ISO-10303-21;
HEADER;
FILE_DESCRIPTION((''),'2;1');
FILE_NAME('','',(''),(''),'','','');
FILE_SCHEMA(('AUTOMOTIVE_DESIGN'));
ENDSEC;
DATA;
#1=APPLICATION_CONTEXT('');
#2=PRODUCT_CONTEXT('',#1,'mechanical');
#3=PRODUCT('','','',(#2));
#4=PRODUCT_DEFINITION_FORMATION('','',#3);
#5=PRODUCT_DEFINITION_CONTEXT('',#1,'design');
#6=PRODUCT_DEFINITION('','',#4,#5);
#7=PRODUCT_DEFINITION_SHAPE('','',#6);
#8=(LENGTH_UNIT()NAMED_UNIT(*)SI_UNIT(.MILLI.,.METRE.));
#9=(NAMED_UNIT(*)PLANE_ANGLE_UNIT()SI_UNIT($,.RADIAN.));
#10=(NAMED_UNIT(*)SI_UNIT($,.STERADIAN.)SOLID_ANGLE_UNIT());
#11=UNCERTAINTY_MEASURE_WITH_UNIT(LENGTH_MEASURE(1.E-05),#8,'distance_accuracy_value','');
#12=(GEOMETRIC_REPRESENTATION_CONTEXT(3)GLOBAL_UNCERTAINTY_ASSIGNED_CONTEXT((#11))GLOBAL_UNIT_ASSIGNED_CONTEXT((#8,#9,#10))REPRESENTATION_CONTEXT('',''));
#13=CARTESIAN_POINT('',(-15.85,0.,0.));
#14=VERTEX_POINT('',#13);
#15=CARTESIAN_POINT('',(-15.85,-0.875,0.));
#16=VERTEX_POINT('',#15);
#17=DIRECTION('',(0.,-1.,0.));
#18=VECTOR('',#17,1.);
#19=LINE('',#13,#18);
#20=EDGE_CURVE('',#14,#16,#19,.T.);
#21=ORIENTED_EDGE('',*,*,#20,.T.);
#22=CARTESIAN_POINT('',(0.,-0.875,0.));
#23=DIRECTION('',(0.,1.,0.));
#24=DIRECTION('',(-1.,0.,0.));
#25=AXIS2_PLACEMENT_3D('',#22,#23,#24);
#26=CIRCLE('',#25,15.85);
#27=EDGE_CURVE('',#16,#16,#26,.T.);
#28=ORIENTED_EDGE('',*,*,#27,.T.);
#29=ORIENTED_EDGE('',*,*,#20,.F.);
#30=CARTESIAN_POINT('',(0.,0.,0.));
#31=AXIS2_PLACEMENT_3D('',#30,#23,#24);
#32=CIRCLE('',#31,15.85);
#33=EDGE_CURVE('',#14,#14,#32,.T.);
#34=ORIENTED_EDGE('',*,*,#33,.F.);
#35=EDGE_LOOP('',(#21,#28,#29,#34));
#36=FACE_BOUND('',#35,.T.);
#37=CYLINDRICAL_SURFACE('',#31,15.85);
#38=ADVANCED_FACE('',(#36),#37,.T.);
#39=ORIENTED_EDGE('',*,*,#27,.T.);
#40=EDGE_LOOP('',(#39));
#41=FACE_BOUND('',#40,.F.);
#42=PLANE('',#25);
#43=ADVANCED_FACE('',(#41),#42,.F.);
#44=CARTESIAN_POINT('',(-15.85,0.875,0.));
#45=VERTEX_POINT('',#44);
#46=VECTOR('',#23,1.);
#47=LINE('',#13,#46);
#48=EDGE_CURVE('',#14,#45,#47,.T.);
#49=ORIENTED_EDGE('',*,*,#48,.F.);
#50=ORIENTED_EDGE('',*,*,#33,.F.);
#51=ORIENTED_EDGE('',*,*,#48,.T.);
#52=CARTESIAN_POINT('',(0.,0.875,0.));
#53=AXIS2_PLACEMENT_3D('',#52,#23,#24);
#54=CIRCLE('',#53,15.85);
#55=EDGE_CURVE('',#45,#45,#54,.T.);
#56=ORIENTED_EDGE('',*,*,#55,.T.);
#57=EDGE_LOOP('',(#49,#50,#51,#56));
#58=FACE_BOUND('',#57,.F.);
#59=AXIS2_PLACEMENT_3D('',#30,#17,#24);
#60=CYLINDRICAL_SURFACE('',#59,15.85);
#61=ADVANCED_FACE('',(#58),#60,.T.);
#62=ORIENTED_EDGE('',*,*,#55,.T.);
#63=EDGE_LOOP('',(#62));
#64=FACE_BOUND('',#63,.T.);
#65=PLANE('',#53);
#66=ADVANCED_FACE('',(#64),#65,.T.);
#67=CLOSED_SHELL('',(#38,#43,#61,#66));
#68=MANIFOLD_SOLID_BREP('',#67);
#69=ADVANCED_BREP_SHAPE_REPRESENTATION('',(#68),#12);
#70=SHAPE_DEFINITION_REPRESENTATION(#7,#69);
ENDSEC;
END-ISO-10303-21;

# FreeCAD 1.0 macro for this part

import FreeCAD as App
import Part
import Sketcher
Q = App.Units.Quantity

doc = App.newDocument("Part")
body = doc.addObject("PartDesign::Body", "Body")

sketch1 = body.newObject("Sketcher::SketchObject", "Sketch")
sketch1.AttachmentSupport = (doc.getObject("XZ_Plane"), [""])
sketch1.MapMode = "FlatFace"
sketch1.addGeometry(Part.Circle(App.Vector(0, 0, 0), App.Vector(0, 0, 1), 16), False)
sketch1.addConstraint([
    Sketcher.Constraint("Coincident", 0, 3, -1, 1),
    Sketcher.Constraint("Diameter", 0, Q("31.7 mm")),
])
pad1 = body.newObject("PartDesign::Pad", "Pad")
pad1.Profile = sketch1
pad1.Length = 1.75
pad1.Midplane = True

doc.recompute()
